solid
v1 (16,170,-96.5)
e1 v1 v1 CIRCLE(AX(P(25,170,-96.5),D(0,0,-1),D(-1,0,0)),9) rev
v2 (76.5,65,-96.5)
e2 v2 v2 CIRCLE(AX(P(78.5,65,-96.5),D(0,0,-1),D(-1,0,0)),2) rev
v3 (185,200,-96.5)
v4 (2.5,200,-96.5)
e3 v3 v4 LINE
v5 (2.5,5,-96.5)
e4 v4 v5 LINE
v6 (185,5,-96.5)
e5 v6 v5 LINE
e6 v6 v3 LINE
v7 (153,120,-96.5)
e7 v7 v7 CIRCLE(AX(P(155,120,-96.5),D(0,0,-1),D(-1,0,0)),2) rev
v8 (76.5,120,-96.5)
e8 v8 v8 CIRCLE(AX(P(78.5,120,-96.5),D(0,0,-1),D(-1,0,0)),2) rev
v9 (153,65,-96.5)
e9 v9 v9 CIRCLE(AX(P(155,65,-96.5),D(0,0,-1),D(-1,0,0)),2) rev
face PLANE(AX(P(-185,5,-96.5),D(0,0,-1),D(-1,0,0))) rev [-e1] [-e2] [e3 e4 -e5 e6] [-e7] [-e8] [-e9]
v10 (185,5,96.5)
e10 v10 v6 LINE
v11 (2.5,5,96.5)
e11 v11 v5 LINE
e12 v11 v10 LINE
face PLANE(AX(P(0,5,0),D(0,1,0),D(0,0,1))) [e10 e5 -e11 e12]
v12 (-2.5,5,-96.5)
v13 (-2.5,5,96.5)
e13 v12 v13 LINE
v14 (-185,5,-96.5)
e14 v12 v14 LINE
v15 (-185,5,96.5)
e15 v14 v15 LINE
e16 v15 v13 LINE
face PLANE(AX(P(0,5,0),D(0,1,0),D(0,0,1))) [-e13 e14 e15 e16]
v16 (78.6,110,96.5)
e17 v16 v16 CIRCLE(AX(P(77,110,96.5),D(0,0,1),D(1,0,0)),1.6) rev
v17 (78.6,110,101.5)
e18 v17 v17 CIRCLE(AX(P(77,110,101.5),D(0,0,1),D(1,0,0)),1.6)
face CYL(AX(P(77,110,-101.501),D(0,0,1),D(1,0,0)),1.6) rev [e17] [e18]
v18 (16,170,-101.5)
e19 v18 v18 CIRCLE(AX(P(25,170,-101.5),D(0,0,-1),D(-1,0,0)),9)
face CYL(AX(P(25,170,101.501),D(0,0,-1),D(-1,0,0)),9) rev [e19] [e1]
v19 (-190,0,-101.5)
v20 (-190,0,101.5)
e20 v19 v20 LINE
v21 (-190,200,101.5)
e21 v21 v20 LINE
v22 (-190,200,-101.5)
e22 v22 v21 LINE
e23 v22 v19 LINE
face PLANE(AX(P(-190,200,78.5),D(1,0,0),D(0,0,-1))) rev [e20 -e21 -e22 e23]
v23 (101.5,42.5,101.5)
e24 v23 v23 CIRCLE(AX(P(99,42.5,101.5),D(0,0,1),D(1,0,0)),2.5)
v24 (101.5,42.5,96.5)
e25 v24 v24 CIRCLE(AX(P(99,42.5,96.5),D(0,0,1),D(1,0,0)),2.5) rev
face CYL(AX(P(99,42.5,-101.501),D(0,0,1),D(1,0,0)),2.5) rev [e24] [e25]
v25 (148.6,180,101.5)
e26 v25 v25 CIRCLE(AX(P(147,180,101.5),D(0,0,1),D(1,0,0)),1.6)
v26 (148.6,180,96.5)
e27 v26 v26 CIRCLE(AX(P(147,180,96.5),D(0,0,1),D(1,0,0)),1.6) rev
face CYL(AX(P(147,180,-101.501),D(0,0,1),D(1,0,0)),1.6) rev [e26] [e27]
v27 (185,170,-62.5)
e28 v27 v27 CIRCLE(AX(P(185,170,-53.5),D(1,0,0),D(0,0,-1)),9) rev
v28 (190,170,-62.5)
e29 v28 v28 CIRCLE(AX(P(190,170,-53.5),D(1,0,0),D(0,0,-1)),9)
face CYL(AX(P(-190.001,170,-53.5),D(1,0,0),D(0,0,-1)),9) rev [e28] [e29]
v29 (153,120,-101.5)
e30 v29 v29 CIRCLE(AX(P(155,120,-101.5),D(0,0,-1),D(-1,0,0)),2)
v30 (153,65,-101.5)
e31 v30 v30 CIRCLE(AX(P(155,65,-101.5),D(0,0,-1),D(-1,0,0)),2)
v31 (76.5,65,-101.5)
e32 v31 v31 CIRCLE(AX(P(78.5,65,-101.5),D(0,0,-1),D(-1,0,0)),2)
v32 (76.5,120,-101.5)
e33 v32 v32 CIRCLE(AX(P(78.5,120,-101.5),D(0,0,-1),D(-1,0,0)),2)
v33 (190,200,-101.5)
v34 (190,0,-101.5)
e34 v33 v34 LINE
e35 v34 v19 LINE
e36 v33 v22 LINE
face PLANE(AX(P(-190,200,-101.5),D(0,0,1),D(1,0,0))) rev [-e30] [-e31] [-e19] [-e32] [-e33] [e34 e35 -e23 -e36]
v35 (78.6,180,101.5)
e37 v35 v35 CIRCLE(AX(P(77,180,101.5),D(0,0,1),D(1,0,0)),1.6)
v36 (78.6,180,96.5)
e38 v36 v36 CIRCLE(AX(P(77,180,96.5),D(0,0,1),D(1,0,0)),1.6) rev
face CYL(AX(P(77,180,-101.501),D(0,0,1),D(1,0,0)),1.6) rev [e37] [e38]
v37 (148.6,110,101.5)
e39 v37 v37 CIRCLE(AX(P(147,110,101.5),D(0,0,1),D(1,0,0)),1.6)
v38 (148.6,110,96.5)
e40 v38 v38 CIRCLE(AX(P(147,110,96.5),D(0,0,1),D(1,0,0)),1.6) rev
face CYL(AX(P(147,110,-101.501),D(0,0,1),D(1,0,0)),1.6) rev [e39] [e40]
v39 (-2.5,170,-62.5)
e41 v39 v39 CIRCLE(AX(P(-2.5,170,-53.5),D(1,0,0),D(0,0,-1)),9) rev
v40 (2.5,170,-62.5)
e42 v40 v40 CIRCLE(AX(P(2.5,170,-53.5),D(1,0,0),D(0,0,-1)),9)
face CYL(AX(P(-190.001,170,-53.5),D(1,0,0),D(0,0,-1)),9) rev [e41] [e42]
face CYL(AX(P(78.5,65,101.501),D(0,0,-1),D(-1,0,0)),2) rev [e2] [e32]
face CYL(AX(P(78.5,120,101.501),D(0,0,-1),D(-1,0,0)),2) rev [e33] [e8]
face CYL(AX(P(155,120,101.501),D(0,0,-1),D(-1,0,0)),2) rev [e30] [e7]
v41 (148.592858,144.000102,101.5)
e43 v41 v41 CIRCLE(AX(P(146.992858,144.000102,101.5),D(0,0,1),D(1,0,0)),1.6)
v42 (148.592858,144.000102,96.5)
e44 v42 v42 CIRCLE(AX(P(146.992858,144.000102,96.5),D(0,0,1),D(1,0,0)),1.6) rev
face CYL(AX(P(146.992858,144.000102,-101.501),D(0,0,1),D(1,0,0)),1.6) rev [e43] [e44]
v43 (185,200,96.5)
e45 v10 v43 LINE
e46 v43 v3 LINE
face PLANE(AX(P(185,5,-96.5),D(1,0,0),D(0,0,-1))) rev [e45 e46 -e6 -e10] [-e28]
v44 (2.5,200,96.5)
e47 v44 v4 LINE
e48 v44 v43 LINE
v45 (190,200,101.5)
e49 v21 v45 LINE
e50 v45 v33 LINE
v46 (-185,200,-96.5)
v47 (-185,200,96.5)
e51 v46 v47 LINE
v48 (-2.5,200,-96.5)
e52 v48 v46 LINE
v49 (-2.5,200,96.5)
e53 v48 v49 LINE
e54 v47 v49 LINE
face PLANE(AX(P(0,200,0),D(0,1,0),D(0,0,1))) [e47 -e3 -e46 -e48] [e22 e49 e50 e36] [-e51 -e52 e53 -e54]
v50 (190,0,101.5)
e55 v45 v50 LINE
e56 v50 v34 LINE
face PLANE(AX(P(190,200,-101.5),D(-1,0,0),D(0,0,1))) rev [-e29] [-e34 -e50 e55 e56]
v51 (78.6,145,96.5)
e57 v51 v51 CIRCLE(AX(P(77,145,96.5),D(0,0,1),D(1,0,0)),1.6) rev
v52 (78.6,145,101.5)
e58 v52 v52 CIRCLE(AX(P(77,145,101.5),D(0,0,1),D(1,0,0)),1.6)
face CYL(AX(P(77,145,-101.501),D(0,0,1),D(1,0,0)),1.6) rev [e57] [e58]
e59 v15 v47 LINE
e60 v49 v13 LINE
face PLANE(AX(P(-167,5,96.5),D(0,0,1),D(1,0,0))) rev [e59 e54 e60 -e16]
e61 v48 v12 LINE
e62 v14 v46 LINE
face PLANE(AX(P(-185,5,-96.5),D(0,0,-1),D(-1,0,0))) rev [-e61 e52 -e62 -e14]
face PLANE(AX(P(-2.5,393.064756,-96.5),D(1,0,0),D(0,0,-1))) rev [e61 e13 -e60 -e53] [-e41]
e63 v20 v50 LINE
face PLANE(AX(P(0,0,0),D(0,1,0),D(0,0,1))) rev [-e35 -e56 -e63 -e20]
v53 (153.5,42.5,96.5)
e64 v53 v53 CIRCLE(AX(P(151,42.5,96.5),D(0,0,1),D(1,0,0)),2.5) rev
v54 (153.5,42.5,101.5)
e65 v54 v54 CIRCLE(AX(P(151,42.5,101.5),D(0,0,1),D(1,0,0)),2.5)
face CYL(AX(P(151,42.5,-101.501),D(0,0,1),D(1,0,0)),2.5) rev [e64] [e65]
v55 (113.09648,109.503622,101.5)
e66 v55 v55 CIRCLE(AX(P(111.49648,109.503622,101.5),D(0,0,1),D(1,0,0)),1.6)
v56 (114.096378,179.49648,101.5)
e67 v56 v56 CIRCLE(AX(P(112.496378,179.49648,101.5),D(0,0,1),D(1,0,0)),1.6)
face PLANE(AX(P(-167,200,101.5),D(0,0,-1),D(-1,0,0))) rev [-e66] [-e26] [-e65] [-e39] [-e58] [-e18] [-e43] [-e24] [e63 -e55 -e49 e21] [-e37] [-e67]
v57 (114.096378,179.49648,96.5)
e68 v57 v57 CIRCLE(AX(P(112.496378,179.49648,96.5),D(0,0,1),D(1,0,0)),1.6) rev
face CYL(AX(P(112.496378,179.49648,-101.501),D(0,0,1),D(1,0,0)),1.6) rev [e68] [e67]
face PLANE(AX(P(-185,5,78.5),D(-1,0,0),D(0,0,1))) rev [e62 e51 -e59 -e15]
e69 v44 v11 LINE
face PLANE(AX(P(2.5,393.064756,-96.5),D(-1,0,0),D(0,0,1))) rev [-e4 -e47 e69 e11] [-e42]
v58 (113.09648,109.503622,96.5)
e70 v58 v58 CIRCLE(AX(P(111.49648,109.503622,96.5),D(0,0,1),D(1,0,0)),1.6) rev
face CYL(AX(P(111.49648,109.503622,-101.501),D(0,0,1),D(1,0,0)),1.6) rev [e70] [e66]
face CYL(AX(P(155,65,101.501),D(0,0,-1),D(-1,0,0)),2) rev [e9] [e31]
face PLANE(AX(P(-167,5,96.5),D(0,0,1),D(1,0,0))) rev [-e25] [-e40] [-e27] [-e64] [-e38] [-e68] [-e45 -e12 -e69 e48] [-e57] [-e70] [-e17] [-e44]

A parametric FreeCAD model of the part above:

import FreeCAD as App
import Part
import Sketcher

doc = App.newDocument("Part")
params = doc.addObject("Spreadsheet::Sheet", "Params")
for row, (alias, value) in enumerate([
    ("sketch1_width", "380 mm"),
    ("sketch1_height", "203 mm"),
    ("pad1_length", "200 mm"),
    ("sketch2_width", "370 mm"),
    ("sketch2_height", "193 mm"),
    ("pocket1_length", "195 mm"),
    ("sketch3_diameter", "18 mm"),
    ("sketch4_diameter", "3.2 mm"),
    ("sketch5_diameter", "3.2 mm"),
    ("sketch6_diameter", "3.2 mm"),
    ("sketch7_diameter", "3.2 mm"),
    ("sketch8_diameter", "3.2 mm"),
    ("sketch9_diameter", "3.2 mm"),
    ("sketch10_diameter", "3.2 mm"),
    ("sketch11_diameter", "3.2 mm"),
    ("sketch12_diameter", "5 mm"),
    ("sketch13_diameter", "5 mm"),
    ("sketch14_width", "5 mm"),
    ("sketch14_height", "193 mm"),
    ("pad2_length", "195 mm"),
    ("sketch15_diameter", "4 mm"),
    ("sketch16_diameter", "4 mm"),
    ("sketch17_diameter", "4 mm"),
    ("sketch18_diameter", "4 mm"),
    ("sketch19_diameter", "18 mm"),
    ("sketch20_diameter", "18 mm"),
], start=1):
    params.set(f"A{row}", alias)
    params.set(f"B{row}", "=" + value)
    params.setAlias(f"B{row}", alias)

body = doc.addObject("PartDesign::Body", "Body")

sketch1 = body.newObject("Sketcher::SketchObject", "Sketch")
sketch1.AttachmentSupport = (doc.getObject("XZ_Plane"), [""])
sketch1.MapMode = "FlatFace"
sketch1.addGeometry([
    Part.LineSegment(App.Vector(-190, -102, 0), App.Vector(-190, 102, 0)),
    Part.LineSegment(App.Vector(-190, 102, 0), App.Vector(190, 102, 0)),
    Part.LineSegment(App.Vector(190, 102, 0), App.Vector(190, -102, 0)),
    Part.LineSegment(App.Vector(190, -102, 0), App.Vector(-190, -102, 0)),
], False)
sketch1.addConstraint([
    Sketcher.Constraint("Coincident", 0, 2, 1, 1),
    Sketcher.Constraint("Coincident", 1, 2, 2, 1),
    Sketcher.Constraint("Coincident", 2, 2, 3, 1),
    Sketcher.Constraint("Coincident", 3, 2, 0, 1),
    Sketcher.Constraint("Vertical", 0),
    Sketcher.Constraint("Horizontal", 1),
    Sketcher.Constraint("Vertical", 2),
    Sketcher.Constraint("Horizontal", 3),
    Sketcher.Constraint("Symmetric", 0, 2, 2, 2, -1, 1),
    Sketcher.Constraint("DistanceX", 1, 1, 1, 2, 380.0),
    Sketcher.Constraint("DistanceY", 0, 1, 0, 2, 203.0),
])
sketch1.setExpression("Constraints[9]", "Params.sketch1_width")
sketch1.setExpression("Constraints[10]", "Params.sketch1_height")
pad1 = body.newObject("PartDesign::Pad", "Pad")
pad1.Profile = sketch1
pad1.setExpression("Length", "Params.pad1_length")
pad1.Reversed = True

sketch2 = body.newObject("Sketcher::SketchObject", "Sketch001")
sketch2.AttachmentSupport = (doc.getObject("XZ_Plane"), [""])
sketch2.MapMode = "FlatFace"
sketch2.AttachmentOffset = App.Placement(App.Vector(0, 0, -200), App.Rotation())
sketch2.addGeometry([
    Part.LineSegment(App.Vector(185, -96, 0), App.Vector(-185, -96, 0)),
    Part.LineSegment(App.Vector(-185, -96, 0), App.Vector(-185, 96, 0)),
    Part.LineSegment(App.Vector(-185, 96, 0), App.Vector(185, 96, 0)),
    Part.LineSegment(App.Vector(185, 96, 0), App.Vector(185, -96, 0)),
], False)
sketch2.addConstraint([
    Sketcher.Constraint("Coincident", 0, 2, 1, 1),
    Sketcher.Constraint("Coincident", 1, 2, 2, 1),
    Sketcher.Constraint("Coincident", 2, 2, 3, 1),
    Sketcher.Constraint("Coincident", 3, 2, 0, 1),
    Sketcher.Constraint("Horizontal", 0),
    Sketcher.Constraint("Vertical", 1),
    Sketcher.Constraint("Horizontal", 2),
    Sketcher.Constraint("Vertical", 3),
    Sketcher.Constraint("Symmetric", 0, 2, 2, 2, -1, 1),
    Sketcher.Constraint("DistanceX", 0, 2, 0, 1, 370.0),
    Sketcher.Constraint("DistanceY", 1, 1, 1, 2, 193.0),
])
sketch2.setExpression("Constraints[9]", "Params.sketch2_width")
sketch2.setExpression("Constraints[10]", "Params.sketch2_height")
pocket1 = body.newObject("PartDesign::Pocket", "Pocket")
pocket1.Profile = sketch2
pocket1.setExpression("Length", "Params.pocket1_length")
pocket1.Reversed = True

sketch3 = body.newObject("Sketcher::SketchObject", "Sketch002")
sketch3.AttachmentSupport = (doc.getObject("YZ_Plane"), [""])
sketch3.MapMode = "FlatFace"
sketch3.AttachmentOffset = App.Placement(App.Vector(0, 0, 190), App.Rotation())
sketch3.addGeometry(Part.Circle(App.Vector(170, -54, 0), App.Vector(0, 0, 1), 9), False)
sketch3.addConstraint([
    Sketcher.Constraint("Diameter", 0, 18.0),
    Sketcher.Constraint("DistanceX", -1, 1, 0, 3, 170.0),
    Sketcher.Constraint("DistanceY", 0, 3, -1, 1, 53.5),
])
sketch3.setExpression("Constraints[0]", "Params.sketch3_diameter")
pocket2 = body.newObject("PartDesign::Pocket", "Pocket001")
pocket2.Profile = sketch3
pocket2.Type = "UpToFirst"

sketch4 = body.newObject("Sketcher::SketchObject", "Sketch003")
sketch4.AttachmentSupport = (doc.getObject("XY_Plane"), [""])
sketch4.MapMode = "FlatFace"
sketch4.AttachmentOffset = App.Placement(App.Vector(0, 0, 101.5), App.Rotation())
sketch4.addGeometry(Part.Circle(App.Vector(77, 180, 0), App.Vector(0, 0, 1), 1.6), False)
sketch4.addConstraint([
    Sketcher.Constraint("Diameter", 0, 3.2),
    Sketcher.Constraint("DistanceX", -1, 1, 0, 3, 77.0),
    Sketcher.Constraint("DistanceY", -1, 1, 0, 3, 180.0),
])
sketch4.setExpression("Constraints[0]", "Params.sketch4_diameter")
pocket3 = body.newObject("PartDesign::Pocket", "Pocket002")
pocket3.Profile = sketch4
pocket3.Type = "UpToFirst"

sketch5 = body.newObject("Sketcher::SketchObject", "Sketch004")
sketch5.AttachmentSupport = (doc.getObject("XY_Plane"), [""])
sketch5.MapMode = "FlatFace"
sketch5.AttachmentOffset = App.Placement(App.Vector(0, 0, 101.5), App.Rotation())
sketch5.addGeometry(Part.Circle(App.Vector(147, 180, 0), App.Vector(0, 0, 1), 1.6), False)
sketch5.addConstraint([
    Sketcher.Constraint("Diameter", 0, 3.2),
    Sketcher.Constraint("DistanceX", -1, 1, 0, 3, 147.0),
    Sketcher.Constraint("DistanceY", -1, 1, 0, 3, 180.0),
])
sketch5.setExpression("Constraints[0]", "Params.sketch5_diameter")
pocket4 = body.newObject("PartDesign::Pocket", "Pocket003")
pocket4.Profile = sketch5
pocket4.Type = "UpToFirst"

sketch6 = body.newObject("Sketcher::SketchObject", "Sketch005")
sketch6.AttachmentSupport = (doc.getObject("XY_Plane"), [""])
sketch6.MapMode = "FlatFace"
sketch6.AttachmentOffset = App.Placement(App.Vector(0, 0, 101.5), App.Rotation())
sketch6.addGeometry(Part.Circle(App.Vector(77, 110, 0), App.Vector(0, 0, 1), 1.6), False)
sketch6.addConstraint([
    Sketcher.Constraint("Diameter", 0, 3.2),
    Sketcher.Constraint("DistanceX", -1, 1, 0, 3, 77.0),
    Sketcher.Constraint("DistanceY", -1, 1, 0, 3, 110.0),
])
sketch6.setExpression("Constraints[0]", "Params.sketch6_diameter")
pocket5 = body.newObject("PartDesign::Pocket", "Pocket004")
pocket5.Profile = sketch6
pocket5.Type = "UpToFirst"

sketch7 = body.newObject("Sketcher::SketchObject", "Sketch006")
sketch7.AttachmentSupport = (doc.getObject("XY_Plane"), [""])
sketch7.MapMode = "FlatFace"
sketch7.AttachmentOffset = App.Placement(App.Vector(0, 0, 101.5), App.Rotation())
sketch7.addGeometry(Part.Circle(App.Vector(147, 110, 0), App.Vector(0, 0, 1), 1.6), False)
sketch7.addConstraint([
    Sketcher.Constraint("Diameter", 0, 3.2),
    Sketcher.Constraint("DistanceX", -1, 1, 0, 3, 147.0),
    Sketcher.Constraint("DistanceY", -1, 1, 0, 3, 110.0),
])
sketch7.setExpression("Constraints[0]", "Params.sketch7_diameter")
pocket6 = body.newObject("PartDesign::Pocket", "Pocket005")
pocket6.Profile = sketch7
pocket6.Type = "UpToFirst"

sketch8 = body.newObject("Sketcher::SketchObject", "Sketch007")
sketch8.AttachmentSupport = (doc.getObject("XY_Plane"), [""])
sketch8.MapMode = "FlatFace"
sketch8.AttachmentOffset = App.Placement(App.Vector(0, 0, 101.5), App.Rotation())
sketch8.addGeometry(Part.Circle(App.Vector(77, 145, 0), App.Vector(0, 0, 1), 1.6), False)
sketch8.addConstraint([
    Sketcher.Constraint("Diameter", 0, 3.2),
    Sketcher.Constraint("DistanceX", -1, 1, 0, 3, 77.0),
    Sketcher.Constraint("DistanceY", -1, 1, 0, 3, 145.0),
])
sketch8.setExpression("Constraints[0]", "Params.sketch8_diameter")
pocket7 = body.newObject("PartDesign::Pocket", "Pocket006")
pocket7.Profile = sketch8
pocket7.Type = "UpToFirst"

sketch9 = body.newObject("Sketcher::SketchObject", "Sketch008")
sketch9.AttachmentSupport = (doc.getObject("XY_Plane"), [""])
sketch9.MapMode = "FlatFace"
sketch9.AttachmentOffset = App.Placement(App.Vector(0, 0, 101.5), App.Rotation())
sketch9.addGeometry(Part.Circle(App.Vector(112.5, 179.5, 0), App.Vector(0, 0, 1), 1.6), False)
sketch9.addConstraint([
    Sketcher.Constraint("Diameter", 0, 3.2),
    Sketcher.Constraint("DistanceX", -1, 1, 0, 3, 112.496378),
    Sketcher.Constraint("DistanceY", -1, 1, 0, 3, 179.49648),
])
sketch9.setExpression("Constraints[0]", "Params.sketch9_diameter")
pocket8 = body.newObject("PartDesign::Pocket", "Pocket007")
pocket8.Profile = sketch9
pocket8.Type = "UpToFirst"

sketch10 = body.newObject("Sketcher::SketchObject", "Sketch009")
sketch10.AttachmentSupport = (doc.getObject("XY_Plane"), [""])
sketch10.MapMode = "FlatFace"
sketch10.AttachmentOffset = App.Placement(App.Vector(0, 0, 101.5), App.Rotation())
sketch10.addGeometry(Part.Circle(App.Vector(147, 144, 0), App.Vector(0, 0, 1), 1.6), False)
sketch10.addConstraint([
    Sketcher.Constraint("Diameter", 0, 3.2),
    Sketcher.Constraint("DistanceX", -1, 1, 0, 3, 146.992858),
    Sketcher.Constraint("DistanceY", -1, 1, 0, 3, 144.000102),
])
sketch10.setExpression("Constraints[0]", "Params.sketch10_diameter")
pocket9 = body.newObject("PartDesign::Pocket", "Pocket008")
pocket9.Profile = sketch10
pocket9.Type = "UpToFirst"

sketch11 = body.newObject("Sketcher::SketchObject", "Sketch010")
sketch11.AttachmentSupport = (doc.getObject("XY_Plane"), [""])
sketch11.MapMode = "FlatFace"
sketch11.AttachmentOffset = App.Placement(App.Vector(0, 0, 101.5), App.Rotation())
sketch11.addGeometry(Part.Circle(App.Vector(111.5, 109.5, 0), App.Vector(0, 0, 1), 1.6), False)
sketch11.addConstraint([
    Sketcher.Constraint("Diameter", 0, 3.2),
    Sketcher.Constraint("DistanceX", -1, 1, 0, 3, 111.49648),
    Sketcher.Constraint("DistanceY", -1, 1, 0, 3, 109.503622),
])
sketch11.setExpression("Constraints[0]", "Params.sketch11_diameter")
pocket10 = body.newObject("PartDesign::Pocket", "Pocket009")
pocket10.Profile = sketch11
pocket10.Type = "UpToFirst"

sketch12 = body.newObject("Sketcher::SketchObject", "Sketch011")
sketch12.AttachmentSupport = (doc.getObject("XY_Plane"), [""])
sketch12.MapMode = "FlatFace"
sketch12.AttachmentOffset = App.Placement(App.Vector(0, 0, 101.5), App.Rotation())
sketch12.addGeometry(Part.Circle(App.Vector(99, 42.5, 0), App.Vector(0, 0, 1), 2.5), False)
sketch12.addConstraint([
    Sketcher.Constraint("Diameter", 0, 5.0),
    Sketcher.Constraint("DistanceX", -1, 1, 0, 3, 99.0),
    Sketcher.Constraint("DistanceY", -1, 1, 0, 3, 42.5),
])
sketch12.setExpression("Constraints[0]", "Params.sketch12_diameter")
pocket11 = body.newObject("PartDesign::Pocket", "Pocket010")
pocket11.Profile = sketch12
pocket11.Type = "UpToFirst"

sketch13 = body.newObject("Sketcher::SketchObject", "Sketch012")
sketch13.AttachmentSupport = (doc.getObject("XY_Plane"), [""])
sketch13.MapMode = "FlatFace"
sketch13.AttachmentOffset = App.Placement(App.Vector(0, 0, 101.5), App.Rotation())
sketch13.addGeometry(Part.Circle(App.Vector(151, 42.5, 0), App.Vector(0, 0, 1), 2.5), False)
sketch13.addConstraint([
    Sketcher.Constraint("Diameter", 0, 5.0),
    Sketcher.Constraint("DistanceX", -1, 1, 0, 3, 151.0),
    Sketcher.Constraint("DistanceY", -1, 1, 0, 3, 42.5),
])
sketch13.setExpression("Constraints[0]", "Params.sketch13_diameter")
pocket12 = body.newObject("PartDesign::Pocket", "Pocket011")
pocket12.Profile = sketch13
pocket12.Type = "UpToFirst"

sketch14 = body.newObject("Sketcher::SketchObject", "Sketch013")
sketch14.AttachmentSupport = (doc.getObject("XZ_Plane"), [""])
sketch14.MapMode = "FlatFace"
sketch14.AttachmentOffset = App.Placement(App.Vector(0, 0, -5), App.Rotation())
sketch14.addGeometry([
    Part.LineSegment(App.Vector(-2, -96, 0), App.Vector(-2, 96, 0)),
    Part.LineSegment(App.Vector(-2, 96, 0), App.Vector(2, 96, 0)),
    Part.LineSegment(App.Vector(2, 96, 0), App.Vector(2, -96, 0)),
    Part.LineSegment(App.Vector(2, -96, 0), App.Vector(-2, -96, 0)),
], False)
sketch14.addConstraint([
    Sketcher.Constraint("Coincident", 0, 2, 1, 1),
    Sketcher.Constraint("Coincident", 1, 2, 2, 1),
    Sketcher.Constraint("Coincident", 2, 2, 3, 1),
    Sketcher.Constraint("Coincident", 3, 2, 0, 1),
    Sketcher.Constraint("Vertical", 0),
    Sketcher.Constraint("Horizontal", 1),
    Sketcher.Constraint("Vertical", 2),
    Sketcher.Constraint("Horizontal", 3),
    Sketcher.Constraint("Symmetric", 0, 2, 2, 2, -1, 1),
    Sketcher.Constraint("DistanceX", 1, 1, 1, 2, 5.0),
    Sketcher.Constraint("DistanceY", 0, 1, 0, 2, 193.0),
])
sketch14.setExpression("Constraints[9]", "Params.sketch14_width")
sketch14.setExpression("Constraints[10]", "Params.sketch14_height")
pad2 = body.newObject("PartDesign::Pad", "Pad001")
pad2.Profile = sketch14
pad2.setExpression("Length", "Params.pad2_length")
pad2.Reversed = True

sketch15 = body.newObject("Sketcher::SketchObject", "Sketch014")
sketch15.AttachmentSupport = (doc.getObject("XY_Plane"), [""])
sketch15.MapMode = "FlatFace"
sketch15.AttachmentOffset = App.Placement(App.Vector(0, 0, -101.5), App.Rotation())
sketch15.addGeometry(Part.Circle(App.Vector(155, 120, 0), App.Vector(0, 0, 1), 2), False)
sketch15.addConstraint([
    Sketcher.Constraint("Diameter", 0, 4.0),
    Sketcher.Constraint("DistanceX", -1, 1, 0, 3, 155.0),
    Sketcher.Constraint("DistanceY", -1, 1, 0, 3, 120.0),
])
sketch15.setExpression("Constraints[0]", "Params.sketch15_diameter")
pocket13 = body.newObject("PartDesign::Pocket", "Pocket012")
pocket13.Profile = sketch15
pocket13.Type = "UpToFirst"
pocket13.Reversed = True

sketch16 = body.newObject("Sketcher::SketchObject", "Sketch015")
sketch16.AttachmentSupport = (doc.getObject("XY_Plane"), [""])
sketch16.MapMode = "FlatFace"
sketch16.AttachmentOffset = App.Placement(App.Vector(0, 0, -101.5), App.Rotation())
sketch16.addGeometry(Part.Circle(App.Vector(78.5, 120, 0), App.Vector(0, 0, 1), 2), False)
sketch16.addConstraint([
    Sketcher.Constraint("Diameter", 0, 4.0),
    Sketcher.Constraint("DistanceY", -1, 1, 0, 3, 120.0),
    Sketcher.Constraint("DistanceX", -1, 1, 0, 3, 78.5),
])
sketch16.setExpression("Constraints[0]", "Params.sketch16_diameter")
pocket14 = body.newObject("PartDesign::Pocket", "Pocket013")
pocket14.Profile = sketch16
pocket14.Type = "UpToFirst"
pocket14.Reversed = True

sketch17 = body.newObject("Sketcher::SketchObject", "Sketch016")
sketch17.AttachmentSupport = (doc.getObject("XY_Plane"), [""])
sketch17.MapMode = "FlatFace"
sketch17.AttachmentOffset = App.Placement(App.Vector(0, 0, -101.5), App.Rotation())
sketch17.addGeometry(Part.Circle(App.Vector(78.5, 65, 0), App.Vector(0, 0, 1), 2), False)
sketch17.addConstraint([
    Sketcher.Constraint("Diameter", 0, 4.0),
    Sketcher.Constraint("DistanceY", -1, 1, 0, 3, 65.0),
    Sketcher.Constraint("DistanceX", -1, 1, 0, 3, 78.5),
])
sketch17.setExpression("Constraints[0]", "Params.sketch17_diameter")
pocket15 = body.newObject("PartDesign::Pocket", "Pocket014")
pocket15.Profile = sketch17
pocket15.Type = "UpToFirst"
pocket15.Reversed = True

sketch18 = body.newObject("Sketcher::SketchObject", "Sketch017")
sketch18.AttachmentSupport = (doc.getObject("XY_Plane"), [""])
sketch18.MapMode = "FlatFace"
sketch18.AttachmentOffset = App.Placement(App.Vector(0, 0, -101.5), App.Rotation())
sketch18.addGeometry(Part.Circle(App.Vector(155, 65, 0), App.Vector(0, 0, 1), 2), False)
sketch18.addConstraint([
    Sketcher.Constraint("Diameter", 0, 4.0),
    Sketcher.Constraint("DistanceX", -1, 1, 0, 3, 155.0),
    Sketcher.Constraint("DistanceY", -1, 1, 0, 3, 65.0),
])
sketch18.setExpression("Constraints[0]", "Params.sketch18_diameter")
pocket16 = body.newObject("PartDesign::Pocket", "Pocket015")
pocket16.Profile = sketch18
pocket16.Type = "UpToFirst"
pocket16.Reversed = True

sketch19 = body.newObject("Sketcher::SketchObject", "Sketch018")
sketch19.AttachmentSupport = (doc.getObject("XY_Plane"), [""])
sketch19.MapMode = "FlatFace"
sketch19.AttachmentOffset = App.Placement(App.Vector(0, 0, -101.5), App.Rotation())
sketch19.addGeometry(Part.Circle(App.Vector(25, 170, 0), App.Vector(0, 0, 1), 9), False)
sketch19.addConstraint([
    Sketcher.Constraint("Diameter", 0, 18.0),
    Sketcher.Constraint("DistanceX", -1, 1, 0, 3, 25.0),
    Sketcher.Constraint("DistanceY", -1, 1, 0, 3, 170.0),
])
sketch19.setExpression("Constraints[0]", "Params.sketch19_diameter")
pocket17 = body.newObject("PartDesign::Pocket", "Pocket016")
pocket17.Profile = sketch19
pocket17.Type = "UpToFirst"
pocket17.Reversed = True

sketch20 = body.newObject("Sketcher::SketchObject", "Sketch019")
sketch20.AttachmentSupport = (doc.getObject("YZ_Plane"), [""])
sketch20.MapMode = "FlatFace"
sketch20.AttachmentOffset = App.Placement(App.Vector(0, 0, 2.5), App.Rotation())
sketch20.addGeometry(Part.Circle(App.Vector(170, -54, 0), App.Vector(0, 0, 1), 9), False)
sketch20.addConstraint([
    Sketcher.Constraint("Diameter", 0, 18.0),
    Sketcher.Constraint("DistanceX", -1, 1, 0, 3, 170.0),
    Sketcher.Constraint("DistanceY", 0, 3, -1, 1, 53.5),
])
sketch20.setExpression("Constraints[0]", "Params.sketch20_diameter")
pocket18 = body.newObject("PartDesign::Pocket", "Pocket017")
pocket18.Profile = sketch20
pocket18.Type = "UpToFirst"

doc.recompute()
